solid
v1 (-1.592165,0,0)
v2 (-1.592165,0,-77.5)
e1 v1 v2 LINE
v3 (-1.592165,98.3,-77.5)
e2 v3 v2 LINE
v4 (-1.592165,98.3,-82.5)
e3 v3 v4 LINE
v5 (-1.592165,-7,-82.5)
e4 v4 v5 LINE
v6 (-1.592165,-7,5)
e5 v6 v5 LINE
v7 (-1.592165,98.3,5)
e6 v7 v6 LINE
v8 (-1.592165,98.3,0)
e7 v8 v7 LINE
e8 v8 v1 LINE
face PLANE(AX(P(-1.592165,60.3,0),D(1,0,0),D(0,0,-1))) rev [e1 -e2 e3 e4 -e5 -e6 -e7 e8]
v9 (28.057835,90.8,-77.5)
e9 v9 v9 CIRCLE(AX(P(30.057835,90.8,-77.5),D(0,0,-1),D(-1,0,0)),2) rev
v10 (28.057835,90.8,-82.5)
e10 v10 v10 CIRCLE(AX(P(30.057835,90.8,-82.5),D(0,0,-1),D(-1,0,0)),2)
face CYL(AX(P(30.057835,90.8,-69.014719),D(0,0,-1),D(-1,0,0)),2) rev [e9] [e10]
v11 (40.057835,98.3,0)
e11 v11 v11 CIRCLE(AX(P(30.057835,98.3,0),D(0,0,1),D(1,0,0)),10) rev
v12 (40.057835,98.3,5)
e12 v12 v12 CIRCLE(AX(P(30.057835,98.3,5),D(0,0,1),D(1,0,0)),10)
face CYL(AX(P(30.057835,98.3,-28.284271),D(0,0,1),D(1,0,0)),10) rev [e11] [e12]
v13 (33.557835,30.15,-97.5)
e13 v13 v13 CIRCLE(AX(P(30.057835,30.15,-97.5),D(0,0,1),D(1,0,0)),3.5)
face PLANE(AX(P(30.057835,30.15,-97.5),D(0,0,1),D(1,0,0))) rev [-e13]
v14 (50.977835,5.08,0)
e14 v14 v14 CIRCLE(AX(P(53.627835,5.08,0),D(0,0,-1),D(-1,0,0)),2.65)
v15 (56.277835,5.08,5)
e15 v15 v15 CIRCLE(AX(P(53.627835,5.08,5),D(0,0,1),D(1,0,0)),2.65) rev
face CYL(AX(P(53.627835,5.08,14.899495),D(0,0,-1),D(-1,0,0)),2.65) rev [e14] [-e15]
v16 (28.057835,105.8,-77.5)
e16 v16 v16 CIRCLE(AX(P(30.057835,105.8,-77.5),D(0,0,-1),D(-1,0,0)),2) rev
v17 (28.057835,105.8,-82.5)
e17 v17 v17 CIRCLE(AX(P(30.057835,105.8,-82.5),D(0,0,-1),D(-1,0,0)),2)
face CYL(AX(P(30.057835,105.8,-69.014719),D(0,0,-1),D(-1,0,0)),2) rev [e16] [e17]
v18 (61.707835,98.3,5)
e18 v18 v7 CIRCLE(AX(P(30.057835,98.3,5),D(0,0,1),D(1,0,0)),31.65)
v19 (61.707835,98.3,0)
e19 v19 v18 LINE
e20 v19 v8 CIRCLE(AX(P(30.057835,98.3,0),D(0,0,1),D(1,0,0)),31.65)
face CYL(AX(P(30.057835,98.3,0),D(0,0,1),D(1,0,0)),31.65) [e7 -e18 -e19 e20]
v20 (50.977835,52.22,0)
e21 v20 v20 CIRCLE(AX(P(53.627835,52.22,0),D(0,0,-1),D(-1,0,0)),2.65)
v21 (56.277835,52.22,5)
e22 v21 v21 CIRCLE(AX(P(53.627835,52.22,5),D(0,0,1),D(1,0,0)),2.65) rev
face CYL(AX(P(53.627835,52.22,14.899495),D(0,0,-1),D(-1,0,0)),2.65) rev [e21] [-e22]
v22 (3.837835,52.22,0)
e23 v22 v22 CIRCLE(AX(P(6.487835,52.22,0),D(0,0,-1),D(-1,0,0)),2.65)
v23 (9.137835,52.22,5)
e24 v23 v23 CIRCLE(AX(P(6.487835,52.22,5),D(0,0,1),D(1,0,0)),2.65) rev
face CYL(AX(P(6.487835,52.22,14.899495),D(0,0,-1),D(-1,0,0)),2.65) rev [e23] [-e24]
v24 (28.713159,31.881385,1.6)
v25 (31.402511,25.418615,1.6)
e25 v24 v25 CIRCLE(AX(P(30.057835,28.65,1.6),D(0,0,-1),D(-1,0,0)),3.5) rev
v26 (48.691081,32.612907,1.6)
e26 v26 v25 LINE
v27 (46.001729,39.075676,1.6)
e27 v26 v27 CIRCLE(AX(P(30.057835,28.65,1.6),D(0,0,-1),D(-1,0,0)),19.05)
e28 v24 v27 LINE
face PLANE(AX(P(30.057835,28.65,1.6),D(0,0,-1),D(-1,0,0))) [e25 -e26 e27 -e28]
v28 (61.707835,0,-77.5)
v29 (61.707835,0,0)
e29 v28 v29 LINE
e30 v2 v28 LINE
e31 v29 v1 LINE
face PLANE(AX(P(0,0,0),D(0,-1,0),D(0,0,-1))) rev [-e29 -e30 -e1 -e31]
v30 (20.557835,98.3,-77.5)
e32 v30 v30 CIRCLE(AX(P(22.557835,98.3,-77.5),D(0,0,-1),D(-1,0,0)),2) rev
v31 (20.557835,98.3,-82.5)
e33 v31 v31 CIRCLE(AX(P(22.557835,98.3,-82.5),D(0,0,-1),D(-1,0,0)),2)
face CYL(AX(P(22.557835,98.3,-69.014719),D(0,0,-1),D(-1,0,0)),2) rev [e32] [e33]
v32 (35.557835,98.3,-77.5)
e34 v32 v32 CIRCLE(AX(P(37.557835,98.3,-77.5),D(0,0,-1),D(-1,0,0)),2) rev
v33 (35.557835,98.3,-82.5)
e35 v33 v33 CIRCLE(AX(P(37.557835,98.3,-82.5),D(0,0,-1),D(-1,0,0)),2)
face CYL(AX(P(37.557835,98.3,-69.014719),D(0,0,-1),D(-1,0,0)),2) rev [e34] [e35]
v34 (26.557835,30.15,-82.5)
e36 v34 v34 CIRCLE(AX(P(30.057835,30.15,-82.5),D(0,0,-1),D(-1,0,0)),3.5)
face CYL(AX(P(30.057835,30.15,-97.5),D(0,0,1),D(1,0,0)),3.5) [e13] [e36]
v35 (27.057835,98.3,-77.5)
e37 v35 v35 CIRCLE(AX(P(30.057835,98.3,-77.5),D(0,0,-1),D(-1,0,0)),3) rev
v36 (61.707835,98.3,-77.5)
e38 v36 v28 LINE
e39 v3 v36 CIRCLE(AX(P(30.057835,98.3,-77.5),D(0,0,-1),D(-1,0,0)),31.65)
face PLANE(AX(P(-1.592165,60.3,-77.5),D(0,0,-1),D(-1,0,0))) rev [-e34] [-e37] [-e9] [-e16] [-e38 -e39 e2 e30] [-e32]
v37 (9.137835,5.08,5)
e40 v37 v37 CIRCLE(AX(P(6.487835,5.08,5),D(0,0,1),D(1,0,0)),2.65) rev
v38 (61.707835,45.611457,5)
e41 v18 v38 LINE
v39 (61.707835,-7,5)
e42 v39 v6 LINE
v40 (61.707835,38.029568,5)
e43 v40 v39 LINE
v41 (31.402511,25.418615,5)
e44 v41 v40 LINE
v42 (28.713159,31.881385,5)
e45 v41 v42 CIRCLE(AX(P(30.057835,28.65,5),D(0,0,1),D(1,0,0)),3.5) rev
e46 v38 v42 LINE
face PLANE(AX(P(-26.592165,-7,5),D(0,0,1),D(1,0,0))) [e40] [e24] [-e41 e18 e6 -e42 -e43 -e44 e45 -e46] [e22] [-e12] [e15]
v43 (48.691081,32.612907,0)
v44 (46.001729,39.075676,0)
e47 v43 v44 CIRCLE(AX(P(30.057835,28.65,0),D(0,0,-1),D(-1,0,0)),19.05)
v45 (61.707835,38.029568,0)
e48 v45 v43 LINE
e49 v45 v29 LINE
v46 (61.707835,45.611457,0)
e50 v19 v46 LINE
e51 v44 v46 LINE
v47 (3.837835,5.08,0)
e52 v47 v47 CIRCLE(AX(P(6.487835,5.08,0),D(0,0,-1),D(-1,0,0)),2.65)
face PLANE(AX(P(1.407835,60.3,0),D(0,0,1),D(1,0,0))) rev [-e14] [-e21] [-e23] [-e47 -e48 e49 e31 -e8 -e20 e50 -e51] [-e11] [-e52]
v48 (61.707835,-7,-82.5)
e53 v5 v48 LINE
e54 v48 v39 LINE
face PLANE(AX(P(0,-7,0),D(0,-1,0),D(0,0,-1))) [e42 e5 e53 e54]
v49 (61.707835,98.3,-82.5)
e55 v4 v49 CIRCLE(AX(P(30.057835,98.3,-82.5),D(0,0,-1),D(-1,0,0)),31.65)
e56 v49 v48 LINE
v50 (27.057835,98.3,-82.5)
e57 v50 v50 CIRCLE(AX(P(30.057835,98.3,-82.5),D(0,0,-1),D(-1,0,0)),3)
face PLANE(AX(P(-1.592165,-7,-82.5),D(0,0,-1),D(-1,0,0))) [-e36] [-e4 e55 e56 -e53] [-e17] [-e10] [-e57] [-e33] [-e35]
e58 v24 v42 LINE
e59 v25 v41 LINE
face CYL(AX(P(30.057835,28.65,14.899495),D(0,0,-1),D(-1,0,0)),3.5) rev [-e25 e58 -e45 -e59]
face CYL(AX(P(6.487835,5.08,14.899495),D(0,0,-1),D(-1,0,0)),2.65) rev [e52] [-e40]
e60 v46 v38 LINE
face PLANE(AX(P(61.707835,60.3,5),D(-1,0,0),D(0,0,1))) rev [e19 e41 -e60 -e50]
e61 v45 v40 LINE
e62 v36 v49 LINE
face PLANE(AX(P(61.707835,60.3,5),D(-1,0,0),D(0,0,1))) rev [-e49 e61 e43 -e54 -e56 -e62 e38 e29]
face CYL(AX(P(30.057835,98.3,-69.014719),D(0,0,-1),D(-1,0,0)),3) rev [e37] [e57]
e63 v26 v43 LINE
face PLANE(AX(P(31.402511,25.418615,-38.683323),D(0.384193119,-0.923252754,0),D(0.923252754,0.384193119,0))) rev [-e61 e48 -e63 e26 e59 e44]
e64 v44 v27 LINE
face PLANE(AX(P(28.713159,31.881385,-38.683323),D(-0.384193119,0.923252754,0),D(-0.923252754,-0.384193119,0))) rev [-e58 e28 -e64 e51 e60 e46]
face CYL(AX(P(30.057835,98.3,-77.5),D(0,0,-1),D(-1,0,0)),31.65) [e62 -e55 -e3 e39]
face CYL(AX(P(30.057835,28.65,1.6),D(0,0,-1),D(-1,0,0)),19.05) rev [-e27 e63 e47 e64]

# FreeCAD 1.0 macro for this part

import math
import FreeCAD as App
import Part
import Sketcher

V = App.Vector


def add_polygon(sketch, points):
    """Adds a closed chain of lines whose ends are joined by coincident constraints."""
    first, n = sketch.GeometryCount, len(points)
    for a, b in zip(points, points[1:] + points[:1]):
        sketch.addGeometry(Part.LineSegment(App.Vector(*a, 0), App.Vector(*b, 0)), False)
    for i in range(n):
        sketch.addConstraint(Sketcher.Constraint("Coincident", first + i, 2, first + (i + 1) % n, 1))

doc = App.newDocument("Part")
body = doc.addObject("PartDesign::Body", "Body")

sketch1 = body.newObject("Sketcher::SketchObject", "Sketch")
sketch1.AttachmentSupport = (doc.getObject("XZ_Plane"), [""])
sketch1.MapMode = "FlatFace"
add_polygon(sketch1, [(87, -82), (-27, -82), (-27, 5), (87, 5)])
sketch1.addConstraint(Sketcher.Constraint("Horizontal", 0))
sketch1.addConstraint(Sketcher.Constraint("Vertical", 1))
sketch1.addConstraint(Sketcher.Constraint("Horizontal", 2))
sketch1.addConstraint(Sketcher.Constraint("Vertical", 3))
sketch1.addConstraint(Sketcher.Constraint("DistanceX", 0, 2, 0, 1, 113.3))
sketch1.addConstraint(Sketcher.Constraint("DistanceY", 1, 1, 1, 2, 87.5))
sketch1.addConstraint(Sketcher.Constraint("DistanceY", -1, 1, 1, 2, 5.0))
sketch1.addConstraint(Sketcher.Constraint("DistanceX", 0, 2, -1, 1, 26.592165))
pad1 = body.newObject("PartDesign::Pad", "Pad")
pad1.Profile = sketch1
pad1.Length = 7

sketch2 = body.newObject("Sketcher::SketchObject", "Sketch001")
sketch2.AttachmentSupport = (doc.getObject("XZ_Plane"), [""])
sketch2.MapMode = "FlatFace"
add_polygon(sketch2, [(62, 0), (-2, 0), (-2, 5), (62, 5)])
sketch2.addConstraint(Sketcher.Constraint("Horizontal", 0))
sketch2.addConstraint(Sketcher.Constraint("Vertical", 1))
sketch2.addConstraint(Sketcher.Constraint("Horizontal", 2))
sketch2.addConstraint(Sketcher.Constraint("Vertical", 3))
sketch2.addConstraint(Sketcher.Constraint("PointOnObject", 0, 2, -1))
sketch2.addConstraint(Sketcher.Constraint("DistanceY", 1, 1, 1, 2, 5.0))
sketch2.addConstraint(Sketcher.Constraint("DistanceX", 0, 2, 0, 1, 63.3))
sketch2.addConstraint(Sketcher.Constraint("DistanceX", 0, 2, -1, 1, 1.592165))
pad2 = body.newObject("PartDesign::Pad", "Pad001")
pad2.Profile = sketch2
pad2.Length = 60.3
pad2.Reversed = True

sketch3 = body.newObject("Sketcher::SketchObject", "Sketch002")
sketch3.AttachmentSupport = (doc.getObject("XZ_Plane"), [""])
sketch3.MapMode = "FlatFace"
add_polygon(sketch3, [(-2, -82), (-2, -78), (62, -78), (62, -82)])
sketch3.addConstraint(Sketcher.Constraint("Vertical", 0))
sketch3.addConstraint(Sketcher.Constraint("Horizontal", 1))
sketch3.addConstraint(Sketcher.Constraint("Vertical", 2))
sketch3.addConstraint(Sketcher.Constraint("Horizontal", 3))
sketch3.addConstraint(Sketcher.Constraint("DistanceY", 0, 1, 0, 2, 5.0))
sketch3.addConstraint(Sketcher.Constraint("DistanceX", 1, 1, 1, 2, 63.3))
sketch3.addConstraint(Sketcher.Constraint("DistanceY", 0, 2, -1, 1, 77.5))
sketch3.addConstraint(Sketcher.Constraint("DistanceX", 0, 2, -1, 1, 1.592165))
pad3 = body.newObject("PartDesign::Pad", "Pad002")
pad3.Profile = sketch3
pad3.Length = 60.3
pad3.Reversed = True

sketch4 = body.newObject("Sketcher::SketchObject", "Sketch003")
sketch4.AttachmentSupport = (doc.getObject("XY_Plane"), [""])
sketch4.MapMode = "FlatFace"
sketch4.addGeometry(Part.Circle(V(6.5, 52.2, 0), V(0, 0, 1), 2.6), False)
sketch4.addGeometry(Part.Circle(V(53.6, 52.2, 0), V(0, 0, 1), 2.6), False)
sketch4.addGeometry(Part.Circle(V(53.6, 5.1, 0), V(0, 0, 1), 2.6), False)
sketch4.addGeometry(Part.Circle(V(6.5, 5.1, 0), V(0, 0, 1), 2.6), False)
sketch4.addGeometry(Part.Circle(V(30.1, 28.6, 0), V(0, 0, 1), 3.5), False)
sketch4.addConstraint(Sketcher.Constraint("Equal", 0, 1))
sketch4.addConstraint(Sketcher.Constraint("Equal", 1, 2))
sketch4.addConstraint(Sketcher.Constraint("Equal", 2, 3))
sketch4.addConstraint(Sketcher.Constraint("Horizontal", 0, 3, 1, 3))
sketch4.addConstraint(Sketcher.Constraint("Horizontal", 2, 3, 3, 3))
sketch4.addConstraint(Sketcher.Constraint("Vertical", 1, 3, 2, 3))
sketch4.addConstraint(Sketcher.Constraint("Vertical", 0, 3, 3, 3))
sketch4.addConstraint(Sketcher.Constraint("Diameter", 4, 7.0))
sketch4.addConstraint(Sketcher.Constraint("Diameter", 0, 5.3))
sketch4.addConstraint(Sketcher.Constraint("DistanceY", -1, 1, 0, 3, 52.22))
sketch4.addConstraint(Sketcher.Constraint("DistanceY", -1, 1, 2, 3, 5.08))
sketch4.addConstraint(Sketcher.Constraint("DistanceY", -1, 1, 4, 3, 28.65))
sketch4.addConstraint(Sketcher.Constraint("DistanceX", 0, 3, 1, 3, 47.14))
sketch4.addConstraint(Sketcher.Constraint("DistanceX", 0, 3, 4, 3, 23.57))
sketch4.addConstraint(Sketcher.Constraint("DistanceX", -1, 1, 0, 3, 6.487835))
pocket1 = body.newObject("PartDesign::Pocket", "Pocket")
pocket1.Profile = sketch4
pocket1.Length = 5
pocket1.Reversed = True

sketch5 = body.newObject("Sketcher::SketchObject", "Sketch004")
sketch5.AttachmentSupport = (doc.getObject("XY_Plane"), [""])
sketch5.MapMode = "FlatFace"
sketch5.addGeometry(Part.Circle(V(30, 29, 0), V(0, 0, 1), 19), False)
sketch5.addConstraint(Sketcher.Constraint("Diameter", 0, 38.1))
sketch5.addConstraint(Sketcher.Constraint("DistanceY", -1, 1, 0, 3, 28.65))
sketch5.addConstraint(Sketcher.Constraint("DistanceX", -1, 1, 0, 3, 30.057835))
pocket2 = body.newObject("PartDesign::Pocket", "Pocket001")
pocket2.Profile = sketch5
pocket2.Length = 1.6
pocket2.Reversed = True

sketch6 = body.newObject("Sketcher::SketchObject", "Sketch005")
sketch6.AttachmentSupport = (doc.getObject("XY_Plane"), [""])
sketch6.MapMode = "FlatFace"
sketch6.AttachmentOffset = App.Placement(V(0, 0, 5), App.Rotation())
add_polygon(sketch6, [(62, 46), (29, 32), (31, 25), (62, 38)])
sketch6.addConstraint(Sketcher.Constraint("Vertical", 3))
sketch6.addConstraint(Sketcher.Constraint("Perpendicular", 0, 1))
sketch6.addConstraint(Sketcher.Constraint("Perpendicular", 1, 2))
sketch6.addConstraint(Sketcher.Constraint("Distance", 1, 7.0))
sketch6.addConstraint(Sketcher.Constraint("DistanceY", 3, 1, 3, 2, 7.581889))
sketch6.addConstraint(Sketcher.Constraint("DistanceX", -1, 1, 0, 2, 28.713159))
sketch6.addConstraint(Sketcher.Constraint("DistanceY", -1, 1, 2, 2, 38.029568))
sketch6.addConstraint(Sketcher.Constraint("Distance", 0, 35.737425))
pocket3 = body.newObject("PartDesign::Pocket", "Pocket002")
pocket3.Profile = sketch6
pocket3.Length = 5

sketch7 = body.newObject("Sketcher::SketchObject", "Sketch006")
sketch7.AttachmentSupport = (doc.getObject("XY_Plane"), [""])
sketch7.MapMode = "FlatFace"
sketch7.AttachmentOffset = App.Placement(V(0, 0, -82.5), App.Rotation())
sketch7.addGeometry(Part.LineSegment(V(62, 98, 0), V(62, 60, 0)), False)
sketch7.addGeometry(Part.LineSegment(V(62, 60, 0), V(-2, 60, 0)), False)
sketch7.addGeometry(Part.LineSegment(V(-2, 60, 0), V(-2, 98, 0)), False)
sketch7.addGeometry(Part.ArcOfCircle(Part.Circle(V(30, 98, 0), V(0, 0, 1), 32), math.radians(0), math.radians(180)), False)
sketch7.addConstraint(Sketcher.Constraint("Coincident", 0, 2, 1, 1))
sketch7.addConstraint(Sketcher.Constraint("Coincident", 1, 2, 2, 1))
sketch7.addConstraint(Sketcher.Constraint("Tangent", 2, 2, 3, 2))
sketch7.addConstraint(Sketcher.Constraint("Tangent", 3, 1, 0, 1))
sketch7.addConstraint(Sketcher.Constraint("Vertical", 0))
sketch7.addConstraint(Sketcher.Constraint("Horizontal", 1))
sketch7.addConstraint(Sketcher.Constraint("Vertical", 2))
sketch7.addConstraint(Sketcher.Constraint("DistanceY", 0, 2, 0, 1, 38.0))
sketch7.addConstraint(Sketcher.Constraint("Radius", 3, 31.65))
sketch7.addConstraint(Sketcher.Constraint("DistanceY", -1, 1, 3, 3, 98.3))
sketch7.addConstraint(Sketcher.Constraint("DistanceX", -1, 1, 3, 3, 30.057835))
pad4 = body.newObject("PartDesign::Pad", "Pad003")
pad4.Profile = sketch7
pad4.Length = 5

sketch8 = body.newObject("Sketcher::SketchObject", "Sketch007")
sketch8.AttachmentSupport = (doc.getObject("XY_Plane"), [""])
sketch8.MapMode = "FlatFace"
sketch8.AttachmentOffset = App.Placement(V(0, 0, 5), App.Rotation())
sketch8.addGeometry(Part.LineSegment(V(-2, 98, 0), V(-2, 60, 0)), False)
sketch8.addGeometry(Part.LineSegment(V(-2, 60, 0), V(62, 60, 0)), False)
sketch8.addGeometry(Part.LineSegment(V(62, 60, 0), V(62, 98, 0)), False)
sketch8.addGeometry(Part.ArcOfCircle(Part.Circle(V(30, 98, 0), V(0, 0, 1), 32), math.radians(0), math.radians(180)), False)
sketch8.addConstraint(Sketcher.Constraint("Coincident", 0, 2, 1, 1))
sketch8.addConstraint(Sketcher.Constraint("Coincident", 1, 2, 2, 1))
sketch8.addConstraint(Sketcher.Constraint("Tangent", 2, 2, 3, 1))
sketch8.addConstraint(Sketcher.Constraint("Tangent", 3, 2, 0, 1))
sketch8.addConstraint(Sketcher.Constraint("Vertical", 0))
sketch8.addConstraint(Sketcher.Constraint("Horizontal", 1))
sketch8.addConstraint(Sketcher.Constraint("Vertical", 2))
sketch8.addConstraint(Sketcher.Constraint("DistanceY", 0, 2, 0, 1, 38.0))
sketch8.addConstraint(Sketcher.Constraint("Radius", 3, 31.65))
sketch8.addConstraint(Sketcher.Constraint("DistanceY", -1, 1, 3, 3, 98.3))
sketch8.addConstraint(Sketcher.Constraint("DistanceX", -1, 1, 3, 3, 30.057835))
pad5 = body.newObject("PartDesign::Pad", "Pad004")
pad5.Profile = sketch8
pad5.Length = 5
pad5.Reversed = True

sketch9 = body.newObject("Sketcher::SketchObject", "Sketch008")
sketch9.AttachmentSupport = (doc.getObject("XY_Plane"), [""])
sketch9.MapMode = "FlatFace"
sketch9.AttachmentOffset = App.Placement(V(0, 0, -82.5), App.Rotation())
sketch9.addGeometry(Part.Circle(V(30.1, 98.3, 0), V(0, 0, 1), 3), False)
sketch9.addGeometry(Part.Circle(V(30.1, 105.8, 0), V(0, 0, 1), 2), False)
sketch9.addGeometry(Part.Circle(V(22.6, 98.3, 0), V(0, 0, 1), 2), False)
sketch9.addGeometry(Part.Circle(V(30.1, 90.8, 0), V(0, 0, 1), 2), False)
sketch9.addGeometry(Part.Circle(V(37.6, 98.3, 0), V(0, 0, 1), 2), False)
sketch9.addConstraint(Sketcher.Constraint("Equal", 1, 2))
sketch9.addConstraint(Sketcher.Constraint("Equal", 2, 3))
sketch9.addConstraint(Sketcher.Constraint("Equal", 3, 4))
sketch9.addConstraint(Sketcher.Constraint("Horizontal", 0, 3, 2, 3))
sketch9.addConstraint(Sketcher.Constraint("Horizontal", 2, 3, 4, 3))
sketch9.addConstraint(Sketcher.Constraint("Vertical", 0, 3, 1, 3))
sketch9.addConstraint(Sketcher.Constraint("Vertical", 1, 3, 3, 3))
sketch9.addConstraint(Sketcher.Constraint("Diameter", 0, 6.0))
sketch9.addConstraint(Sketcher.Constraint("Diameter", 1, 4.0))
sketch9.addConstraint(Sketcher.Constraint("DistanceY", 3, 3, 1, 3, 15.0))
sketch9.addConstraint(Sketcher.Constraint("DistanceX", 2, 3, 4, 3, 15.0))
sketch9.addConstraint(Sketcher.Constraint("DistanceY", -1, 1, 0, 3, 98.3))
sketch9.addConstraint(Sketcher.Constraint("DistanceY", -1, 1, 1, 3, 105.8))
sketch9.addConstraint(Sketcher.Constraint("DistanceX", 2, 3, 0, 3, 7.5))
sketch9.addConstraint(Sketcher.Constraint("DistanceX", -1, 1, 0, 3, 30.057835))
pocket4 = body.newObject("PartDesign::Pocket", "Pocket003")
pocket4.Profile = sketch9
pocket4.Length = 5
pocket4.Reversed = True

sketch10 = body.newObject("Sketcher::SketchObject", "Sketch009")
sketch10.AttachmentSupport = (doc.getObject("XY_Plane"), [""])
sketch10.MapMode = "FlatFace"
sketch10.AttachmentOffset = App.Placement(V(0, 0, 5), App.Rotation())
sketch10.addGeometry(Part.Circle(V(30, 98, 0), V(0, 0, 1), 10), False)
sketch10.addConstraint(Sketcher.Constraint("Diameter", 0, 20.0))
sketch10.addConstraint(Sketcher.Constraint("DistanceY", -1, 1, 0, 3, 98.3))
sketch10.addConstraint(Sketcher.Constraint("DistanceX", -1, 1, 0, 3, 30.057835))
pocket5 = body.newObject("PartDesign::Pocket", "Pocket004")
pocket5.Profile = sketch10
pocket5.Length = 5

sketch11 = body.newObject("Sketcher::SketchObject", "Sketch010")
sketch11.AttachmentSupport = (doc.getObject("XZ_Plane"), [""])
sketch11.MapMode = "FlatFace"
add_polygon(sketch11, [(62, -82), (62, 5), (87, 5), (87, -82)])
add_polygon(sketch11, [(-27, -82), (-27, 5), (-2, 5), (-2, -82)])
sketch11.addConstraint(Sketcher.Constraint("Vertical", 0))
sketch11.addConstraint(Sketcher.Constraint("Horizontal", 1))
sketch11.addConstraint(Sketcher.Constraint("Vertical", 2))
sketch11.addConstraint(Sketcher.Constraint("Horizontal", 3))
sketch11.addConstraint(Sketcher.Constraint("Vertical", 4))
sketch11.addConstraint(Sketcher.Constraint("Horizontal", 5))
sketch11.addConstraint(Sketcher.Constraint("Vertical", 6))
sketch11.addConstraint(Sketcher.Constraint("Horizontal", 7))
sketch11.addConstraint(Sketcher.Constraint("Horizontal", 1, 2, 4, 2))
sketch11.addConstraint(Sketcher.Constraint("Horizontal", 3, 2, 6, 2))
sketch11.addConstraint(Sketcher.Constraint("Equal", 3, 5))
sketch11.addConstraint(Sketcher.Constraint("DistanceX", 1, 1, 1, 2, 25.0))
sketch11.addConstraint(Sketcher.Constraint("DistanceY", 0, 1, 0, 2, 87.5))
sketch11.addConstraint(Sketcher.Constraint("DistanceY", -1, 1, 0, 2, 5.0))
sketch11.addConstraint(Sketcher.Constraint("DistanceX", 4, 2, 0, 2, 88.3))
sketch11.addConstraint(Sketcher.Constraint("DistanceX", -1, 1, 0, 2, 61.707835))
pocket6 = body.newObject("PartDesign::Pocket", "Pocket005")
pocket6.Profile = sketch11
pocket6.Length = 7
pocket6.Reversed = True

sketch12 = body.newObject("Sketcher::SketchObject", "Sketch011")
sketch12.AttachmentSupport = (doc.getObject("XY_Plane"), [""])
sketch12.MapMode = "FlatFace"
sketch12.AttachmentOffset = App.Placement(V(0, 0, -77.5), App.Rotation())
sketch12.addGeometry(Part.Circle(V(30.1, 30.1, 0), V(0, 0, 1), 3.5), False)
sketch12.addConstraint(Sketcher.Constraint("Diameter", 0, 7.0))
sketch12.addConstraint(Sketcher.Constraint("DistanceY", -1, 1, 0, 3, 30.15))
sketch12.addConstraint(Sketcher.Constraint("DistanceX", -1, 1, 0, 3, 30.057835))
pad6 = body.newObject("PartDesign::Pad", "Pad005")
pad6.Profile = sketch12
pad6.Length = 20
pad6.Reversed = True

doc.recompute()
